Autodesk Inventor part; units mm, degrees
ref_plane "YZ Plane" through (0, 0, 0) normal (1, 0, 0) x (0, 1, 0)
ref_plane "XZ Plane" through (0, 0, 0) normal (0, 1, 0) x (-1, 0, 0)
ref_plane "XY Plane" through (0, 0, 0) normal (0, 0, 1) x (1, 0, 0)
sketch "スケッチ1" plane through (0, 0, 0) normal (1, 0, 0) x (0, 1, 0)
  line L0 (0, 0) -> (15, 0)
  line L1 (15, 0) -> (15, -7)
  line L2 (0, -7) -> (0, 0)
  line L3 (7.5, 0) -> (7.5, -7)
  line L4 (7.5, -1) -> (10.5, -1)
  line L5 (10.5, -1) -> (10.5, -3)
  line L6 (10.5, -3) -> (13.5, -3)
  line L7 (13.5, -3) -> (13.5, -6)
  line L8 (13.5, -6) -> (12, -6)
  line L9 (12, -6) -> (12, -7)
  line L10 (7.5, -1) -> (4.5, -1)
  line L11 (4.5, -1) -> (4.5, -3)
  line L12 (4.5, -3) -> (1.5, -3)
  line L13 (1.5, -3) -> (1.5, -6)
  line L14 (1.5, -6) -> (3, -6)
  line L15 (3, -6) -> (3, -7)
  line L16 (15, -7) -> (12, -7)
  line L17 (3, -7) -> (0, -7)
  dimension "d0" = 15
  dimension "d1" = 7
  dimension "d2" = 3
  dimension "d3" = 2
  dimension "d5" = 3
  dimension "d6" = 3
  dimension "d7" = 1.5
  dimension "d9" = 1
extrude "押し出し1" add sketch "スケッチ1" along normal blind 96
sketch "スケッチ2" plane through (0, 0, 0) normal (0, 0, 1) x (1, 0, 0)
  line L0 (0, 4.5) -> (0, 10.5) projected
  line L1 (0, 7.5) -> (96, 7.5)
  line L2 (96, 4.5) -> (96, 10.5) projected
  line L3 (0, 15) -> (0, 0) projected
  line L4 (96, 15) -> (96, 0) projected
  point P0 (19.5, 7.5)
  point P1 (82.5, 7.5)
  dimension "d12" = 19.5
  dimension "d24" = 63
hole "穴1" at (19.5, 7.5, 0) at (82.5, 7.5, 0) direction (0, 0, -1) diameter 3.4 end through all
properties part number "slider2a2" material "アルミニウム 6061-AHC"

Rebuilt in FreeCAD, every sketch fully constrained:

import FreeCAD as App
import Part
import Sketcher

V = App.Vector


def add_polygon(sketch, points):
    """Adds a closed chain of lines whose ends are joined by coincident constraints."""
    first, n = sketch.GeometryCount, len(points)
    for a, b in zip(points, points[1:] + points[:1]):
        sketch.addGeometry(Part.LineSegment(App.Vector(*a, 0), App.Vector(*b, 0)), False)
    for i in range(n):
        sketch.addConstraint(Sketcher.Constraint("Coincident", first + i, 2, first + (i + 1) % n, 1))

doc = App.newDocument("Part")
body = doc.addObject("PartDesign::Body", "Body")

# Sketch on YZ plane
sketch1 = body.newObject("Sketcher::SketchObject", "Sketch")
sketch1.AttachmentSupport = (doc.getObject("YZ_Plane"), [""])
sketch1.MapMode = "FlatFace"
add_polygon(sketch1, [(0, 0), (0, -7), (3, -7), (3, -6), (1.5, -6), (1.5, -3), (4.5, -3), (4.5, -1), (10.5, -1), (10.5, -3), (13.5, -3), (13.5, -6), (12, -6), (12, -7), (15, -7), (15, 0)])  # lines 0-15
sketch1.addConstraint([
    Sketcher.Constraint("Vertical", 0),
    Sketcher.Constraint("Horizontal", 1),
    Sketcher.Constraint("Vertical", 2),
    Sketcher.Constraint("Horizontal", 3),
    Sketcher.Constraint("Vertical", 4),
    Sketcher.Constraint("Horizontal", 5),
    Sketcher.Constraint("Vertical", 6),
    Sketcher.Constraint("Horizontal", 7),
    Sketcher.Constraint("Vertical", 8),
    Sketcher.Constraint("Horizontal", 9),
    Sketcher.Constraint("Vertical", 10),
    Sketcher.Constraint("Horizontal", 11),
    Sketcher.Constraint("Vertical", 12),
    Sketcher.Constraint("Horizontal", 13),
    Sketcher.Constraint("Vertical", 14),
    Sketcher.Constraint("Horizontal", 15),
    Sketcher.Constraint("Coincident", 15, 2, -1, 1),
    Sketcher.Constraint("Horizontal", 5, 2, 8, 2),
    Sketcher.Constraint("Horizontal", 3, 2, 10, 2),
    Sketcher.Constraint("Horizontal", 1, 2, 12, 2),
    Sketcher.Constraint("Equal", 1, 5),
    Sketcher.Constraint("Equal", 5, 9),
    Sketcher.Constraint("Equal", 3, 11),
    Sketcher.Constraint("Equal", 9, 13),
    Sketcher.Constraint("Equal", 13, 4),
    Sketcher.Constraint("DistanceX", 1, 1, 1, 2, 3.0),
    Sketcher.Constraint("DistanceX", 15, 2, 15, 1, 15.0),
    Sketcher.Constraint("DistanceY", 0, 2, 0, 1, 7.0),
    Sketcher.Constraint("DistanceY", 2, 1, 2, 2, 1.0),
    Sketcher.Constraint("DistanceY", 6, 1, 6, 2, 2.0),
    Sketcher.Constraint("DistanceX", 3, 2, 3, 1, 1.5),
])
pad1 = body.newObject("PartDesign::Pad", "Pad")
pad1.Profile = sketch1
pad1.Length = 96

# Sketch on XY plane
sketch2 = body.newObject("Sketcher::SketchObject", "Sketch001")
sketch2.AttachmentSupport = (doc.getObject("XY_Plane"), [""])
sketch2.MapMode = "FlatFace"
sketch2.addGeometry([
    Part.Circle(V(19.5, 7.5, 0), V(0, 0, 1), 1.7),
    Part.Circle(V(82.5, 7.5, 0), V(0, 0, 1), 1.7),
], False)
sketch2.addConstraint([
    Sketcher.Constraint("Equal", 0, 1),
    Sketcher.Constraint("Horizontal", 0, 3, 1, 3),
    Sketcher.Constraint("Diameter", 0, 3.4),
    Sketcher.Constraint("DistanceX", 0, 3, 1, 3, 63.0),
    Sketcher.Constraint("DistanceX", -1, 1, 0, 3, 19.5),
    Sketcher.Constraint("DistanceY", -1, 1, 0, 3, 7.5),
])
doc.recompute()
hole = body.newObject("PartDesign::Hole", "Hole")
hole.Profile = sketch2
hole.ThreadType = "None"
hole.Diameter = 3.4
hole.DepthType = "ThroughAll"

doc.recompute()
